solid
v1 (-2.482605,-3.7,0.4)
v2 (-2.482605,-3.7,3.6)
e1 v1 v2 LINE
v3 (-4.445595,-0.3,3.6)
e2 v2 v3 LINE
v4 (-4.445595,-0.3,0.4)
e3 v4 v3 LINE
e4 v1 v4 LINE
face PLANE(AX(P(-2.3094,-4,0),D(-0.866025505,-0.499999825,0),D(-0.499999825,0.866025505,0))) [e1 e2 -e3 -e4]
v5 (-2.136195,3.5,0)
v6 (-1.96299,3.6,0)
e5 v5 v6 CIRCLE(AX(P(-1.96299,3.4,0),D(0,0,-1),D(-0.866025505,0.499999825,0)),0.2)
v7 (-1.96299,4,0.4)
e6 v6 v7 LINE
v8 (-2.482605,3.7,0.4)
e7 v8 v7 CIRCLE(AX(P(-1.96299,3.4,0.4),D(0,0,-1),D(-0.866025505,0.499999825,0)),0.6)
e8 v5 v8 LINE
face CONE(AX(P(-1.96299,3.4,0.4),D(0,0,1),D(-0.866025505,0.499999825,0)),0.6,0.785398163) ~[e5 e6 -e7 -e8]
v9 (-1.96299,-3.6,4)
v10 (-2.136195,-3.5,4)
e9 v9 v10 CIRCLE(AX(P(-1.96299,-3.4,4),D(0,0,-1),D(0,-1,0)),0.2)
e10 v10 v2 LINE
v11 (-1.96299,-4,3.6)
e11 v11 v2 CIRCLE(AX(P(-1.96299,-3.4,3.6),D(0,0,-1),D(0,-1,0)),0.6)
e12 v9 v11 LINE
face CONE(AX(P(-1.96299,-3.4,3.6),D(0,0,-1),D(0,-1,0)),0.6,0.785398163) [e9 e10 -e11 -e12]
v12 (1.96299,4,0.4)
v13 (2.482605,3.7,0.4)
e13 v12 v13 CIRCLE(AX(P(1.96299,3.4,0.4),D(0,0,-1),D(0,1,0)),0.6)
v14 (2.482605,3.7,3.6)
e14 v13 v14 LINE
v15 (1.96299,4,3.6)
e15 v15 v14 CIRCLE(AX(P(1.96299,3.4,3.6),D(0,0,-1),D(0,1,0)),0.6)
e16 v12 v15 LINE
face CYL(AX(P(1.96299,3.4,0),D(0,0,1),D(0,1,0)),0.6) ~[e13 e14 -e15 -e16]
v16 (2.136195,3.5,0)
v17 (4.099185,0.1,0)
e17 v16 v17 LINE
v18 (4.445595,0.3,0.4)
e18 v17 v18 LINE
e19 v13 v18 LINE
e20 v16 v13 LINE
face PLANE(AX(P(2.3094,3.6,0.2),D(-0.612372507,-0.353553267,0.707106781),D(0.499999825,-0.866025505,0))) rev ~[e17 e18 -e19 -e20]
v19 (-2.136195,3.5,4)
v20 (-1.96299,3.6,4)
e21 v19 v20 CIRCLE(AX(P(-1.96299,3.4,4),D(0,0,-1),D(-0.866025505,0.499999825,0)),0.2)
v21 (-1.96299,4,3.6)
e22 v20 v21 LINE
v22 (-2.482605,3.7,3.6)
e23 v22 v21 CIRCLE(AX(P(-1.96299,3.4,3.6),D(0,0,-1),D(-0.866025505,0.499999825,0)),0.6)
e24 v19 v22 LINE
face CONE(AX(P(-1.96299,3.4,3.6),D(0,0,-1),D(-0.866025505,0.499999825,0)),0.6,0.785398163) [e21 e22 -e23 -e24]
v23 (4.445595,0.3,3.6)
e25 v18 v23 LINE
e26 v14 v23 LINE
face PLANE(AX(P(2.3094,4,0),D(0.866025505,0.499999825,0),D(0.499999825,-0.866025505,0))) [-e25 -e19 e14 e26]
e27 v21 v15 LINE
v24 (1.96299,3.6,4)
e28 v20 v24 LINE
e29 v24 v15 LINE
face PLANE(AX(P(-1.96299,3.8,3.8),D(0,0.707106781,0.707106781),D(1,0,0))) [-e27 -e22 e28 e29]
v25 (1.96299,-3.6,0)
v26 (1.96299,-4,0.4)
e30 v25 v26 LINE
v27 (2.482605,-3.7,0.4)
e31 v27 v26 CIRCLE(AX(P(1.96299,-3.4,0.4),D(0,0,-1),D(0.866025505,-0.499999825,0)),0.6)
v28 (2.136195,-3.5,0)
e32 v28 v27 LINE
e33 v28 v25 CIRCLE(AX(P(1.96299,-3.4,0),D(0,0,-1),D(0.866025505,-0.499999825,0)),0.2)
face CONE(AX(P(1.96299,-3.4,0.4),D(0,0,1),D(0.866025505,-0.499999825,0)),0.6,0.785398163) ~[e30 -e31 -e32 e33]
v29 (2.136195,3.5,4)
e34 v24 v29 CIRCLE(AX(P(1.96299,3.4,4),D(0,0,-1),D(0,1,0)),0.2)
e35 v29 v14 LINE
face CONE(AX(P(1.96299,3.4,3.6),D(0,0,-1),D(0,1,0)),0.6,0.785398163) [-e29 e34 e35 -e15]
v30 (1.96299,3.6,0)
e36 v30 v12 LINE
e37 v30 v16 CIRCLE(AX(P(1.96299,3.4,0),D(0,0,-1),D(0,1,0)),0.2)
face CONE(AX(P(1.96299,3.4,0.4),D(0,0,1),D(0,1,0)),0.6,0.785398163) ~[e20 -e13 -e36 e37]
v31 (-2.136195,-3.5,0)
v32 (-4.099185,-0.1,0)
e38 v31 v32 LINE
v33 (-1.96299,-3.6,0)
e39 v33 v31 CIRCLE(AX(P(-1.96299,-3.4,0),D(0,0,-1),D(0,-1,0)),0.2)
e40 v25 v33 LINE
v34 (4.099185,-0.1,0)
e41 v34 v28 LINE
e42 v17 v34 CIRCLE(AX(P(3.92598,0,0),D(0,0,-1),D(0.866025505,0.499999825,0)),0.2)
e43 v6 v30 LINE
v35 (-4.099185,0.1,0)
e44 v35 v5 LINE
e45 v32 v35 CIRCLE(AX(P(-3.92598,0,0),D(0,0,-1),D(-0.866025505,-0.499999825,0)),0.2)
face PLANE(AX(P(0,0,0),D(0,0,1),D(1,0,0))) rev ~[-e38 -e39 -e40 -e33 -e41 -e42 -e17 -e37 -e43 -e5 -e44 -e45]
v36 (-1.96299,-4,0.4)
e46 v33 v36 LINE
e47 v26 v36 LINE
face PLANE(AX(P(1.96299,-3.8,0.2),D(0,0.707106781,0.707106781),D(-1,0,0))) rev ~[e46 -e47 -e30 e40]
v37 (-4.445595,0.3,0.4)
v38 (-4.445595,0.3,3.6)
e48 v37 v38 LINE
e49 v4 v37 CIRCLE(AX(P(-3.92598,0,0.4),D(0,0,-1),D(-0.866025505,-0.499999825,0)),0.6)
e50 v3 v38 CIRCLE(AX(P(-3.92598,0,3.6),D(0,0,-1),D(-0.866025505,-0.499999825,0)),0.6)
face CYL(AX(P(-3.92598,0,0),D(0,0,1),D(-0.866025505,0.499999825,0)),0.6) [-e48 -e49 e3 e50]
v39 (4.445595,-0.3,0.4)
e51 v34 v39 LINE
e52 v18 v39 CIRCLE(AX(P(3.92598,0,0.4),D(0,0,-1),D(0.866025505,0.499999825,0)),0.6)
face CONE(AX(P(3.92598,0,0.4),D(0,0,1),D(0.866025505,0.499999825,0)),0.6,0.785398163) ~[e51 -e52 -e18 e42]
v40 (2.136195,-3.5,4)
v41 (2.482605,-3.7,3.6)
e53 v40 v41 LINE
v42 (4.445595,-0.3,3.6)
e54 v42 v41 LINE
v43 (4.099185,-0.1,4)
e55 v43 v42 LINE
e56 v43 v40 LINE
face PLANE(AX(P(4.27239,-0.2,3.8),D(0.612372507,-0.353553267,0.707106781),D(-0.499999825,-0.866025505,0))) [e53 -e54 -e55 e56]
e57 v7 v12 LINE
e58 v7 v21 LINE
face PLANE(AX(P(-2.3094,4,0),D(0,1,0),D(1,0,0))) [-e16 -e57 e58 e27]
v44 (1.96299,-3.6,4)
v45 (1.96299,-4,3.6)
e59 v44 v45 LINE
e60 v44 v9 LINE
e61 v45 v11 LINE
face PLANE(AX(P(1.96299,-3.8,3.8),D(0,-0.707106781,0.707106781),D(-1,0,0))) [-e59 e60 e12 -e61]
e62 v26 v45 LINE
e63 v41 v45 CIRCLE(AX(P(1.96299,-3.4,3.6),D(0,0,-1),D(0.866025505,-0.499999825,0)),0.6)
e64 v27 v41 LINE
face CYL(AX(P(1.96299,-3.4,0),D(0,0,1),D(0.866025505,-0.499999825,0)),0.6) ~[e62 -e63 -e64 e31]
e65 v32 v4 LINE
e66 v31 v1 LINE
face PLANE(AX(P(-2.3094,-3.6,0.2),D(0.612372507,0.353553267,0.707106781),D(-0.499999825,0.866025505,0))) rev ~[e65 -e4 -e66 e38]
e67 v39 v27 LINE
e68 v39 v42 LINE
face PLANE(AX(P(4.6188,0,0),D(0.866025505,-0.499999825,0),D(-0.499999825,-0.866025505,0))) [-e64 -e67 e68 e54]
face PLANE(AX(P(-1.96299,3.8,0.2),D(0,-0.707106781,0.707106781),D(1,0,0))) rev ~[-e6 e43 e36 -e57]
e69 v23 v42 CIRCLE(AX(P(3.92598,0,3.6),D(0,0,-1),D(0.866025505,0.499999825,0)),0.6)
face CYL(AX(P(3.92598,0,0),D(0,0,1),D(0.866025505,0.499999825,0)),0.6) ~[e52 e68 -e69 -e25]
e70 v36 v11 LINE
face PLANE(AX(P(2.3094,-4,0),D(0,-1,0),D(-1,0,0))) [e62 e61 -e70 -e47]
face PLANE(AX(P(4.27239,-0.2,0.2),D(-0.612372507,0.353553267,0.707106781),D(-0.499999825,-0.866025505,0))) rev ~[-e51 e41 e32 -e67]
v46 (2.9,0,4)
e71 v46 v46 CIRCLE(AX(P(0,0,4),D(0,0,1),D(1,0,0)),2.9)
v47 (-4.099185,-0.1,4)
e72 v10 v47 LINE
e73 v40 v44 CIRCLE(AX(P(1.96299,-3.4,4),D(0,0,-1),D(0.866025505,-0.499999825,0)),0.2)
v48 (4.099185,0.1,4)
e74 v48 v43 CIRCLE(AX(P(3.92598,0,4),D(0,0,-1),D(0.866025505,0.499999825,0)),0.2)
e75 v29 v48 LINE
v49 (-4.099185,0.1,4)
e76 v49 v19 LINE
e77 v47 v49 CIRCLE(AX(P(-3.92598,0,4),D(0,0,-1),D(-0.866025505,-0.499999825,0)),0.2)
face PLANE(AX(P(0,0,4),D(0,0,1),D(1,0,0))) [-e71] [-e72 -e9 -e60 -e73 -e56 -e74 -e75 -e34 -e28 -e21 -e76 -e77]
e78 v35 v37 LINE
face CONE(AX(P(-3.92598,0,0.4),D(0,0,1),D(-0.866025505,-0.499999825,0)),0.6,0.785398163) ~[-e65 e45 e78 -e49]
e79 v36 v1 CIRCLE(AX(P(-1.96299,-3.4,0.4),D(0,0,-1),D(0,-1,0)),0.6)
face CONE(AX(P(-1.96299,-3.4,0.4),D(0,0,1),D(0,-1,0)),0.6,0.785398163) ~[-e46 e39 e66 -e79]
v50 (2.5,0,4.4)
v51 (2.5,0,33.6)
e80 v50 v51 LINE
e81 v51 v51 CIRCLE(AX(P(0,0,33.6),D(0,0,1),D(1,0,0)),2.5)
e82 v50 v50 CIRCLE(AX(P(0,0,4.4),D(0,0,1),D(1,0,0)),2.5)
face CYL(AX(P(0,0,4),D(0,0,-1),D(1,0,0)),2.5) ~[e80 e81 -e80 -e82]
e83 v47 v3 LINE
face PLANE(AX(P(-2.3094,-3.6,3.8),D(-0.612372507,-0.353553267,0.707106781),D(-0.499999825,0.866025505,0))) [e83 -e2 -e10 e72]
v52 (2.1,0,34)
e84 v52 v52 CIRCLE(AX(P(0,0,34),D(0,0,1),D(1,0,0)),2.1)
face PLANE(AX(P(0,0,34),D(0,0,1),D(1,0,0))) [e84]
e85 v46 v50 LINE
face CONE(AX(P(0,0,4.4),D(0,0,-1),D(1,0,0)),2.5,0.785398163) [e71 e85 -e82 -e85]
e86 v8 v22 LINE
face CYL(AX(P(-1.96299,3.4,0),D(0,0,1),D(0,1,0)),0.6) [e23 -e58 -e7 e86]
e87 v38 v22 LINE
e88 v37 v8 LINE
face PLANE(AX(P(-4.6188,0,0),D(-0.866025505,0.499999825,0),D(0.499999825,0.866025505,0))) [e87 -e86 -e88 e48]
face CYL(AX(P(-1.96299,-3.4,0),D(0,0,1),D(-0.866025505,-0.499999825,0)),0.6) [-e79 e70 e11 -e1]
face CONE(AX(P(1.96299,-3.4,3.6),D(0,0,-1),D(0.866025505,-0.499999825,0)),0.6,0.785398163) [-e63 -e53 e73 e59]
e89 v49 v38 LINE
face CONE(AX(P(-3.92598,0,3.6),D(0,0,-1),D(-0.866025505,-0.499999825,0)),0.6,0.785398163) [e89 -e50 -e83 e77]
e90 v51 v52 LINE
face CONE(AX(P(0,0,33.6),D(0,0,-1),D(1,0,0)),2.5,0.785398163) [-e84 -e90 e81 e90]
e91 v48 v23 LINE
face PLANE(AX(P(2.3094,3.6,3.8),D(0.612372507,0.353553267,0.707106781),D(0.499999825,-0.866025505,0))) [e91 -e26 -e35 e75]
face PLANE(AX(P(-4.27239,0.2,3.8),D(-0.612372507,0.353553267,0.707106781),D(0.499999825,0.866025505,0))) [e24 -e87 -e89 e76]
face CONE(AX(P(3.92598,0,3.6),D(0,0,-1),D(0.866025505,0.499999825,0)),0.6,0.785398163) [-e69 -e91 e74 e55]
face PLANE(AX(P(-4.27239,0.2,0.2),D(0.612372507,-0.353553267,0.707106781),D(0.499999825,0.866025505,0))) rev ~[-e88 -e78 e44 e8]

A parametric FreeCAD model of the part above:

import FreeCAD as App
import Part
import Sketcher
from FreeCAD import Vector
Q = App.Units.Quantity


def edges_at(feature, points):
    """Names of the edges that pass closest to the given points."""
    edges = feature.Shape.Edges
    near = lambda p: min(range(len(edges)), key=lambda i: edges[i].distToShape(Part.Vertex(*p))[0])
    return sorted({f"Edge{near(p) + 1}" for p in points})


def add_polygon(sketch, points):
    """Adds a closed chain of lines whose ends are joined by coincident constraints."""
    first, n = sketch.GeometryCount, len(points)
    for a, b in zip(points, points[1:] + points[:1]):
        sketch.addGeometry(Part.LineSegment(App.Vector(*a, 0), App.Vector(*b, 0)), False)
    for i in range(n):
        sketch.addConstraint(Sketcher.Constraint("Coincident", first + i, 2, first + (i + 1) % n, 1))

doc = App.newDocument("Part")
params = doc.addObject("Spreadsheet::Sheet", "Params")
for row, (alias, value) in enumerate([
    ("pad1_length", "4 mm"),
    ("sketch2_diameter", "5 mm"),
    ("pad2_length", "30 mm"),
    ("fillet_radius", "0.6 mm"),
    ("chamfer_size", "0.4 mm"),
], start=1):
    params.set(f"A{row}", alias)
    params.set(f"B{row}", "=" + value)
    params.setAlias(f"B{row}", alias)

body = doc.addObject("PartDesign::Body", "Body")

# Sketch on XY plane
sketch1 = body.newObject("Sketcher::SketchObject", "Sketch")
sketch1.AttachmentSupport = (doc.getObject("XY_Plane"), [""])
sketch1.MapMode = "FlatFace"
add_polygon(sketch1, [(2.3094, 4), (-2.3094, 4), (-4.6188, 0), (-2.3094, -4), (2.3094, -4), (4.6188, 0)])  # lines 0-5
sketch1.addConstraint([
    Sketcher.Constraint("Horizontal", 0),
    Sketcher.Constraint("Horizontal", 3),
    Sketcher.Constraint("Symmetric", 0, 2, 3, 2, -1, 1),
    Sketcher.Constraint("Symmetric", 1, 2, 4, 2, -1, 1),
    Sketcher.Constraint("PointOnObject", 1, 2, -1),
    Sketcher.Constraint("Parallel", 2, 5),
    Sketcher.Constraint("Vertical", 0, 2, 2, 2),
    Sketcher.Constraint("DistanceY", 2, 2, 0, 2, Q("8 mm")),
    Sketcher.Constraint("Angle", 1, Q("-120 deg")),
    Sketcher.Constraint("DistanceX", 0, 2, 0, 1, Q("4.6188 mm")),
])
pad1 = body.newObject("PartDesign::Pad", "Pad")
pad1.Profile = sketch1
pad1.setExpression("Length", "Params.pad1_length")

# Sketch on XY plane
sketch2 = body.newObject("Sketcher::SketchObject", "Sketch001")
sketch2.AttachmentSupport = (doc.getObject("XY_Plane"), [""])
sketch2.MapMode = "FlatFace"
sketch2.AttachmentOffset = App.Placement(Vector(0, 0, 4), App.Rotation())
sketch2.addGeometry(Part.Circle(Vector(0, 0, 0), Vector(0, 0, 1), 2.5), False)
sketch2.addConstraint([
    Sketcher.Constraint("Coincident", 0, 3, -1, 1),
    Sketcher.Constraint("Diameter", 0, Q("5 mm")),
])
sketch2.setExpression("Constraints[1]", "Params.sketch2_diameter")
pad2 = body.newObject("PartDesign::Pad", "Pad001")
pad2.Profile = sketch2
pad2.setExpression("Length", "Params.pad2_length")
doc.recompute()

fillet = body.newObject("PartDesign::Fillet", "Fillet")
fillet.Base = (pad2, edges_at(pad2, [
    (-2.309, -4, 2),
    (2.309, -4, 2),
    (4.619, 0, 2),
    (2.309, 4, 2),
    (-2.309, 4, 2),
    (-4.619, 0, 2),
]))
fillet.setExpression("Radius", "Params.fillet_radius")
doc.recompute()

chamfer = body.newObject("PartDesign::Chamfer", "Chamfer")
chamfer.Base = (fillet, edges_at(fillet, [
    (3.464, 2, 4),
    (2.263, 3.92, 4),
    (0, 4, 4),
    (-2.263, 3.92, 4),
    (-3.464, 2, 4),
    (-4.526, 0, 4),
    (-3.464, -2, 4),
    (-2.263, -3.92, 4),
    (0, -4, 4),
    (2.263, -3.92, 4),
    (3.464, -2, 4),
    (4.526, 0, 4),
    (-3.464, 2, 0),
    (-4.526, 0, 0),
    (-3.464, -2, 0),
    (-2.263, -3.92, 0),
    (0, -4, 0),
    (2.263, -3.92, 0),
    (3.464, -2, 0),
    (4.526, 0, 0),
    (3.464, 2, 0),
    (2.263, 3.92, 0),
    (0, 4, 0),
    (-2.263, 3.92, 0),
    (-2.5, 0, 34),
    (-2.5, 0, 4),
]))
chamfer.setExpression("Size", "Params.chamfer_size")

doc.recompute()
